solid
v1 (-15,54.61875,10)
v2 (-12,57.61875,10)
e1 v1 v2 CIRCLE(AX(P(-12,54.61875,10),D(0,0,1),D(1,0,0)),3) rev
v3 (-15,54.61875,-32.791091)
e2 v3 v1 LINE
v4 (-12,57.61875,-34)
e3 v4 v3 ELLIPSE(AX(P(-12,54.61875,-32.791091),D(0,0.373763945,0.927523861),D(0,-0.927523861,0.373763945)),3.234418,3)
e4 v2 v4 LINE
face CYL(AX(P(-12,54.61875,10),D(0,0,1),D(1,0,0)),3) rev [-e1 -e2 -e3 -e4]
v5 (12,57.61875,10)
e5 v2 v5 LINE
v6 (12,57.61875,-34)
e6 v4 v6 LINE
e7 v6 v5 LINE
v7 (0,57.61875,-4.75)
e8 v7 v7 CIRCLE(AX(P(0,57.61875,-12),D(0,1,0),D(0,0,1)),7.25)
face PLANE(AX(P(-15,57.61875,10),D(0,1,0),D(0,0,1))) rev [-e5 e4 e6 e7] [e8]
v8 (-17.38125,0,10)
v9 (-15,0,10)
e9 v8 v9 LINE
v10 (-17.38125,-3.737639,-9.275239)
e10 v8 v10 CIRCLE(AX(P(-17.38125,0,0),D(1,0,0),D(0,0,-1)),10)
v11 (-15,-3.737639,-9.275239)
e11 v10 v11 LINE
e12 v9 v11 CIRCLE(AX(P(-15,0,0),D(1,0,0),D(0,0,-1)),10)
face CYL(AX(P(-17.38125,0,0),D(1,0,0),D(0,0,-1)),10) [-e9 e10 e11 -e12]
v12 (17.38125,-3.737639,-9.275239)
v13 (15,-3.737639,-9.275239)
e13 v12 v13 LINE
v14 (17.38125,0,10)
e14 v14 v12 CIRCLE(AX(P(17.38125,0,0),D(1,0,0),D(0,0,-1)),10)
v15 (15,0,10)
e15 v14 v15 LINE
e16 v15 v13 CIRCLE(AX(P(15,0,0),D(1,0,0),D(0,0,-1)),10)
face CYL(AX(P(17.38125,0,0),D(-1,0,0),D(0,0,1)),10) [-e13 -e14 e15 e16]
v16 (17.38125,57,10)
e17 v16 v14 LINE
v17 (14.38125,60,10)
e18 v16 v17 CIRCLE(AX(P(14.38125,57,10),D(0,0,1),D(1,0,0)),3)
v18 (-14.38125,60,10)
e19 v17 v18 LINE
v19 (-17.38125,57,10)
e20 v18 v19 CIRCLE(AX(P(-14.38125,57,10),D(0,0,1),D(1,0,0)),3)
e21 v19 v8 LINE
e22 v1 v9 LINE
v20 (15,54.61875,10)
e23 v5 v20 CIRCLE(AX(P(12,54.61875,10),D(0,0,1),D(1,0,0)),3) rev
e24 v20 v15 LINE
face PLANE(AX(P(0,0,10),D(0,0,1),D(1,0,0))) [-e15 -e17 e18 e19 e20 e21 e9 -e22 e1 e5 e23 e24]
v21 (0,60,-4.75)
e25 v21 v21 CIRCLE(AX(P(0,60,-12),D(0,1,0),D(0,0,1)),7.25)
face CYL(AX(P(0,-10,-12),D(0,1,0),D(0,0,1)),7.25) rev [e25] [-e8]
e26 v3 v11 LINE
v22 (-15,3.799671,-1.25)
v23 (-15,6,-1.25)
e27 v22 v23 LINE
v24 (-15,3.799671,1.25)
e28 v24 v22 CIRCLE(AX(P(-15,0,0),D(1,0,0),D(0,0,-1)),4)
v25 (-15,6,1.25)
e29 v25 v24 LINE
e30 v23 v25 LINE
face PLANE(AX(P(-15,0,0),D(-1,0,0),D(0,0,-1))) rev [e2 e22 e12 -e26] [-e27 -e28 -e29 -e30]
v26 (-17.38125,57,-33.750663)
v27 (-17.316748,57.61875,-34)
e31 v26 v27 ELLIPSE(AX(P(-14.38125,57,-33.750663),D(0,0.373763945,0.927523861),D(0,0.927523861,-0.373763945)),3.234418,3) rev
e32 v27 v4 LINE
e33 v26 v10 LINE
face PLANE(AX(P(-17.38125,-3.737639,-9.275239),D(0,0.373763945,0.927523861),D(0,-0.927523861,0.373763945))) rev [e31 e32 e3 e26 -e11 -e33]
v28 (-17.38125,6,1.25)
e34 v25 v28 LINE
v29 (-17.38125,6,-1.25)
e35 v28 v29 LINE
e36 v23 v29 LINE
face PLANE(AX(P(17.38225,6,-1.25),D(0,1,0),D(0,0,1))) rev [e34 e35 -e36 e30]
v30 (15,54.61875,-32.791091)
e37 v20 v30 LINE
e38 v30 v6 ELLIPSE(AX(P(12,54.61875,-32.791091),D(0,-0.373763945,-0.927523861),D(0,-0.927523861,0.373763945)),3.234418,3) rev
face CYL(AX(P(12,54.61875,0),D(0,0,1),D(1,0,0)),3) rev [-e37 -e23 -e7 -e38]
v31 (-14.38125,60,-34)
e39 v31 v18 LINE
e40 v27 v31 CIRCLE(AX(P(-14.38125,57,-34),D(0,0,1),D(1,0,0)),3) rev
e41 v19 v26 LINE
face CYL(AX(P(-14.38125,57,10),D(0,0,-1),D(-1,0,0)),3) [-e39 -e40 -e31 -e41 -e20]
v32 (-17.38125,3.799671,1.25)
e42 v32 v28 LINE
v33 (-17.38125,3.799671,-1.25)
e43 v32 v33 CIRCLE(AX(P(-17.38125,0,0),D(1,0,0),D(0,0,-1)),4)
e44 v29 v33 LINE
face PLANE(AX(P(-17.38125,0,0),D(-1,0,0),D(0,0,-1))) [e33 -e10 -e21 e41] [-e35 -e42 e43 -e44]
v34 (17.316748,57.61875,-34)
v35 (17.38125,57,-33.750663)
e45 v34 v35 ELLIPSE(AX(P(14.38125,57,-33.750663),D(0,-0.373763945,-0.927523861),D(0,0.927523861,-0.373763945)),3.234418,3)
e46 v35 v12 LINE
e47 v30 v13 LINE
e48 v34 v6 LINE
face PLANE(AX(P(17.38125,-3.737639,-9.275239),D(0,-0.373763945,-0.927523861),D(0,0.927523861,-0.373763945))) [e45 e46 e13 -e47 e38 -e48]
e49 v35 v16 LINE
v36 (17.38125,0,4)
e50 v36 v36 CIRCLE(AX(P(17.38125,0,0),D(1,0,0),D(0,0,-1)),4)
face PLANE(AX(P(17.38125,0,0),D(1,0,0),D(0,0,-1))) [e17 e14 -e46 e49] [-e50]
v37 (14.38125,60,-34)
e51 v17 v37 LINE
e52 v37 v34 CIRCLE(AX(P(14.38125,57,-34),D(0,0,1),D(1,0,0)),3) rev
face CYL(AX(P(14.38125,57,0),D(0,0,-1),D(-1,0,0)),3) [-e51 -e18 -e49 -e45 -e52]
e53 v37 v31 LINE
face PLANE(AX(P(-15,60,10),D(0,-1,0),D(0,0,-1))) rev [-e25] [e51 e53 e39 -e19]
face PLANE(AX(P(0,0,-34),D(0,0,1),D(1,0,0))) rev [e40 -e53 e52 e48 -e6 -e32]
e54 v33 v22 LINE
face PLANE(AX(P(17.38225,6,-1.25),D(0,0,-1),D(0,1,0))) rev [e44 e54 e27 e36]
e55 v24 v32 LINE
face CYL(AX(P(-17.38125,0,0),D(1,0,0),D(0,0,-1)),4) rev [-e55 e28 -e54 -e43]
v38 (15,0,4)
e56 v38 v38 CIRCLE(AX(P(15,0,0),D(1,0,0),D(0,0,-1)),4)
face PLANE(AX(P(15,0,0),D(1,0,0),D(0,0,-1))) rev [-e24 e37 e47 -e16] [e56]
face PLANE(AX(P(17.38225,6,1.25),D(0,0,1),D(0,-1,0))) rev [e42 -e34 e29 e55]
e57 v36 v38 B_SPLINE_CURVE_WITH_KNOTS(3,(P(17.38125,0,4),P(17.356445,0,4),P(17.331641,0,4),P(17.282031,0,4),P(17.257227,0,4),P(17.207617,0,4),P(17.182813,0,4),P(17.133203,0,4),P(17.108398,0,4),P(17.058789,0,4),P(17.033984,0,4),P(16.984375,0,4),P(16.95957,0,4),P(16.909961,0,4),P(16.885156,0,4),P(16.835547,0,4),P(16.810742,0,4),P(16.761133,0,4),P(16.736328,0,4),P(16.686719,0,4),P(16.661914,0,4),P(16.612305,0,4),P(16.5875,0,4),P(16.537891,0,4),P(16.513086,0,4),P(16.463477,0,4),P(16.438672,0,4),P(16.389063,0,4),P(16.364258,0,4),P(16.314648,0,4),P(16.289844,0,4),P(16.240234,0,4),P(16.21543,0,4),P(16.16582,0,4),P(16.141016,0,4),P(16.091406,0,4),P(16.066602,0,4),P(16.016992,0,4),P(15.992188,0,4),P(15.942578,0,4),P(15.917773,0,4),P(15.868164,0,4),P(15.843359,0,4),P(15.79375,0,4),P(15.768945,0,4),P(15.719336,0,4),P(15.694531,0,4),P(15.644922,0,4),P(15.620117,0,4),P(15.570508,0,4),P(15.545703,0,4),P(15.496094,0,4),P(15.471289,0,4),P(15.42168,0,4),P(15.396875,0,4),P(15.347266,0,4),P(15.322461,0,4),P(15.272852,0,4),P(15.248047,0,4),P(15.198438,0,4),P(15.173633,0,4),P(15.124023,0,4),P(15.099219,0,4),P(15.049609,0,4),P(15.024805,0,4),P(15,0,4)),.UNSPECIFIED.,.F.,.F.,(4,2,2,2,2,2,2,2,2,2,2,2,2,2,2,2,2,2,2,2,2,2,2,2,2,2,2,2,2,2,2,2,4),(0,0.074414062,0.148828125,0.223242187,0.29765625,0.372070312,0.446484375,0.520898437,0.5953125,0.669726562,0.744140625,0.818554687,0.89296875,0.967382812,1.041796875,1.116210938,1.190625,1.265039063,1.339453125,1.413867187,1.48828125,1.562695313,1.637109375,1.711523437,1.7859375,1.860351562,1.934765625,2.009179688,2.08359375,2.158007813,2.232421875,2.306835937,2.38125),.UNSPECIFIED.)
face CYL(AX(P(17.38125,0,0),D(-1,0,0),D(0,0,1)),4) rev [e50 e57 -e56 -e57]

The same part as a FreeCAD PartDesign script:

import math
import FreeCAD as App
import Part
import Sketcher
from FreeCAD import Vector
Q = App.Units.Quantity


def edges_at(feature, points):
    """Names of the edges that pass closest to the given points."""
    edges = feature.Shape.Edges
    near = lambda p: min(range(len(edges)), key=lambda i: edges[i].distToShape(Part.Vertex(*p))[0])
    return sorted({f"Edge{near(p) + 1}" for p in points})

doc = App.newDocument("Part")
params = doc.addObject("Spreadsheet::Sheet", "Params")
for row, (alias, value) in enumerate([
    ("sketch1_width", "30 mm"),
    ("pad1_length", "10 mm"),
    ("pad1_length2", "34 mm"),
    ("sketch2_diameter", "8 mm"),
    ("sketch2_radius", "10 mm"),
    ("sketch2_width", "60 mm"),
    ("sketch2_height", "44 mm"),
    ("pad2_length", "2.38125 mm"),
    ("fillet_radius", "3 mm"),
    ("sketch3_diameter", "14.5 mm"),
    ("sketch4_width", "6 mm"),
    ("sketch4_height", "2.5 mm"),
    ("pocket2_length", "2.38125 mm"),
], start=1):
    params.set(f"A{row}", alias)
    params.set(f"B{row}", "=" + value)
    params.setAlias(f"B{row}", alias)

body = doc.addObject("PartDesign::Body", "Body")

# Sketch on XY plane
sketch1 = body.newObject("Sketcher::SketchObject", "Sketch")
sketch1.AttachmentSupport = (doc.getObject("XY_Plane"), [""])
sketch1.MapMode = "FlatFace"
sketch1.addGeometry(Part.LineSegment(Vector(-15, 60, 0), Vector(-15, 57.6, 0)), False)
sketch1.addGeometry(Part.LineSegment(Vector(-15, 57.6, 0), Vector(15, 57.6, 0)), False)
sketch1.addGeometry(Part.LineSegment(Vector(15, 57.6, 0), Vector(15, 60, 0)), False)
sketch1.addGeometry(Part.LineSegment(Vector(15, 60, 0), Vector(-15, 60, 0)), False)
sketch1.addConstraint(Sketcher.Constraint("Coincident", 0, 2, 1, 1))
sketch1.addConstraint(Sketcher.Constraint("Coincident", 1, 2, 2, 1))
sketch1.addConstraint(Sketcher.Constraint("Coincident", 2, 2, 3, 1))
sketch1.addConstraint(Sketcher.Constraint("Coincident", 3, 2, 0, 1))
sketch1.addConstraint(Sketcher.Constraint("Vertical", 0))
sketch1.addConstraint(Sketcher.Constraint("Horizontal", 1))
sketch1.addConstraint(Sketcher.Constraint("Vertical", 2))
sketch1.addConstraint(Sketcher.Constraint("Horizontal", 3))
sketch1.addConstraint(Sketcher.Constraint("DistanceX", 1, 1, 1, 2, Q("30 mm")))
sketch1.addConstraint(Sketcher.Constraint("DistanceX", 0, 2, -1, 1, Q("15 mm")))
sketch1.addConstraint(Sketcher.Constraint("DistanceY", -1, 1, 2, 2, Q("60 mm")))
sketch1.addConstraint(Sketcher.Constraint("DistanceY", 0, 2, 0, 1, Q("2.38125 mm")))
sketch1.setExpression("Constraints[8]", "Params.sketch1_width")
pad1 = body.newObject("PartDesign::Pad", "Pad")
pad1.Profile = sketch1
pad1.Type = "TwoLengths"
pad1.setExpression("Length", "Params.pad1_length")
pad1.setExpression("Length2", "Params.pad1_length2")

# Sketch on YZ plane
sketch2 = body.newObject("Sketcher::SketchObject", "Sketch001")
sketch2.AttachmentSupport = (doc.getObject("YZ_Plane"), [""])
sketch2.MapMode = "FlatFace"
sketch2.AttachmentOffset = App.Placement(Vector(0, 0, 15), App.Rotation())
sketch2.addGeometry(Part.ArcOfCircle(Part.Circle(Vector(0, 0, 0), Vector(0, 0, 1), 10), math.radians(90), math.radians(248)), False)
sketch2.addGeometry(Part.LineSegment(Vector(-3.7, -9.3, 0), Vector(57.6, -34, 0)), False)
sketch2.addGeometry(Part.LineSegment(Vector(57.6, -34, 0), Vector(60, -34, 0)), False)
sketch2.addGeometry(Part.LineSegment(Vector(60, -34, 0), Vector(60, 10, 0)), False)
sketch2.addGeometry(Part.LineSegment(Vector(60, 10, 0), Vector(0, 10, 0)), False)
sketch2.addGeometry(Part.Circle(Vector(0, 0, 0), Vector(0, 0, 1), 4), False)
sketch2.addConstraint(Sketcher.Constraint("Tangent", 0, 2, 1, 1))
sketch2.addConstraint(Sketcher.Constraint("Coincident", 1, 2, 2, 1))
sketch2.addConstraint(Sketcher.Constraint("Coincident", 2, 2, 3, 1))
sketch2.addConstraint(Sketcher.Constraint("Coincident", 3, 2, 4, 1))
sketch2.addConstraint(Sketcher.Constraint("Tangent", 4, 2, 0, 1))
sketch2.addConstraint(Sketcher.Constraint("Horizontal", 2))
sketch2.addConstraint(Sketcher.Constraint("Vertical", 3))
sketch2.addConstraint(Sketcher.Constraint("Horizontal", 4))
sketch2.addConstraint(Sketcher.Constraint("Coincident", 0, 3, -1, 1))
sketch2.addConstraint(Sketcher.Constraint("Coincident", 5, 3, -1, 1))
sketch2.addConstraint(Sketcher.Constraint("Diameter", 5, Q("8 mm")))
sketch2.addConstraint(Sketcher.Constraint("Radius", 0, Q("10 mm")))
sketch2.addConstraint(Sketcher.Constraint("DistanceX", 4, 2, 4, 1, Q("60 mm")))
sketch2.addConstraint(Sketcher.Constraint("DistanceY", 3, 1, 3, 2, Q("44 mm")))
sketch2.addConstraint(Sketcher.Constraint("DistanceX", 2, 1, 2, 2, Q("2.38125 mm")))
sketch2.setExpression("Constraints[10]", "Params.sketch2_diameter")
sketch2.setExpression("Constraints[11]", "Params.sketch2_radius")
sketch2.setExpression("Constraints[12]", "Params.sketch2_width")
sketch2.setExpression("Constraints[13]", "Params.sketch2_height")
pad2 = body.newObject("PartDesign::Pad", "Pad001")
pad2.Profile = sketch2
pad2.setExpression("Length", "Params.pad2_length")
doc.recompute()

mirrored = body.newObject("PartDesign::Mirrored", "Mirrored")
mirrored.Originals = [pad2]
mirrored.MirrorPlane = (doc.getObject("YZ_Plane"), [""])
body.Tip = mirrored
doc.recompute()

fillet = body.newObject("PartDesign::Fillet", "Fillet")
fillet.Base = (mirrored, edges_at(mirrored, [
    (17.381, 60, -12),
    (-17.381, 60, -12),
    (15, 57.619, -12),
    (-15, 57.619, -12),
]))
fillet.setExpression("Radius", "Params.fillet_radius")

# Sketch on XZ plane
sketch3 = body.newObject("Sketcher::SketchObject", "Sketch002")
sketch3.AttachmentSupport = (doc.getObject("XZ_Plane"), [""])
sketch3.MapMode = "FlatFace"
sketch3.AttachmentOffset = App.Placement(Vector(0, 0, -60), App.Rotation())
sketch3.addGeometry(Part.Circle(Vector(0, -12, 0), Vector(0, 0, 1), 7), False)
sketch3.addConstraint(Sketcher.Constraint("PointOnObject", 0, 3, -2))
sketch3.addConstraint(Sketcher.Constraint("Diameter", 0, Q("14.5 mm")))
sketch3.addConstraint(Sketcher.Constraint("DistanceY", 0, 3, -1, 1, Q("12 mm")))
sketch3.setExpression("Constraints[1]", "Params.sketch3_diameter")
pocket1 = body.newObject("PartDesign::Pocket", "Pocket")
pocket1.Profile = sketch3
pocket1.Type = "ThroughAll"
pocket1.Reversed = True

# Sketch on YZ plane
sketch4 = body.newObject("Sketcher::SketchObject", "Sketch003")
sketch4.AttachmentSupport = (doc.getObject("YZ_Plane"), [""])
sketch4.MapMode = "FlatFace"
sketch4.AttachmentOffset = App.Placement(Vector(0, 0, -17.38125), App.Rotation())
sketch4.addGeometry(Part.LineSegment(Vector(6, -1.2, 0), Vector(0, -1.2, 0)), False)
sketch4.addGeometry(Part.LineSegment(Vector(0, -1.2, 0), Vector(0, 1.2, 0)), False)
sketch4.addGeometry(Part.LineSegment(Vector(0, 1.2, 0), Vector(6, 1.2, 0)), False)
sketch4.addGeometry(Part.LineSegment(Vector(6, 1.2, 0), Vector(6, -1.2, 0)), False)
sketch4.addConstraint(Sketcher.Constraint("Coincident", 0, 2, 1, 1))
sketch4.addConstraint(Sketcher.Constraint("Coincident", 1, 2, 2, 1))
sketch4.addConstraint(Sketcher.Constraint("Coincident", 2, 2, 3, 1))
sketch4.addConstraint(Sketcher.Constraint("Coincident", 3, 2, 0, 1))
sketch4.addConstraint(Sketcher.Constraint("Horizontal", 0))
sketch4.addConstraint(Sketcher.Constraint("Vertical", 1))
sketch4.addConstraint(Sketcher.Constraint("Horizontal", 2))
sketch4.addConstraint(Sketcher.Constraint("Vertical", 3))
sketch4.addConstraint(Sketcher.Constraint("Symmetric", 0, 2, 1, 2, -1, 1))
sketch4.addConstraint(Sketcher.Constraint("DistanceX", 0, 2, 0, 1, Q("6 mm")))
sketch4.addConstraint(Sketcher.Constraint("DistanceY", 1, 1, 1, 2, Q("2.5 mm")))
sketch4.setExpression("Constraints[9]", "Params.sketch4_width")
sketch4.setExpression("Constraints[10]", "Params.sketch4_height")
pocket2 = body.newObject("PartDesign::Pocket", "Pocket001")
pocket2.Profile = sketch4
pocket2.setExpression("Length", "Params.pocket2_length")
pocket2.Reversed = True

doc.recompute()
